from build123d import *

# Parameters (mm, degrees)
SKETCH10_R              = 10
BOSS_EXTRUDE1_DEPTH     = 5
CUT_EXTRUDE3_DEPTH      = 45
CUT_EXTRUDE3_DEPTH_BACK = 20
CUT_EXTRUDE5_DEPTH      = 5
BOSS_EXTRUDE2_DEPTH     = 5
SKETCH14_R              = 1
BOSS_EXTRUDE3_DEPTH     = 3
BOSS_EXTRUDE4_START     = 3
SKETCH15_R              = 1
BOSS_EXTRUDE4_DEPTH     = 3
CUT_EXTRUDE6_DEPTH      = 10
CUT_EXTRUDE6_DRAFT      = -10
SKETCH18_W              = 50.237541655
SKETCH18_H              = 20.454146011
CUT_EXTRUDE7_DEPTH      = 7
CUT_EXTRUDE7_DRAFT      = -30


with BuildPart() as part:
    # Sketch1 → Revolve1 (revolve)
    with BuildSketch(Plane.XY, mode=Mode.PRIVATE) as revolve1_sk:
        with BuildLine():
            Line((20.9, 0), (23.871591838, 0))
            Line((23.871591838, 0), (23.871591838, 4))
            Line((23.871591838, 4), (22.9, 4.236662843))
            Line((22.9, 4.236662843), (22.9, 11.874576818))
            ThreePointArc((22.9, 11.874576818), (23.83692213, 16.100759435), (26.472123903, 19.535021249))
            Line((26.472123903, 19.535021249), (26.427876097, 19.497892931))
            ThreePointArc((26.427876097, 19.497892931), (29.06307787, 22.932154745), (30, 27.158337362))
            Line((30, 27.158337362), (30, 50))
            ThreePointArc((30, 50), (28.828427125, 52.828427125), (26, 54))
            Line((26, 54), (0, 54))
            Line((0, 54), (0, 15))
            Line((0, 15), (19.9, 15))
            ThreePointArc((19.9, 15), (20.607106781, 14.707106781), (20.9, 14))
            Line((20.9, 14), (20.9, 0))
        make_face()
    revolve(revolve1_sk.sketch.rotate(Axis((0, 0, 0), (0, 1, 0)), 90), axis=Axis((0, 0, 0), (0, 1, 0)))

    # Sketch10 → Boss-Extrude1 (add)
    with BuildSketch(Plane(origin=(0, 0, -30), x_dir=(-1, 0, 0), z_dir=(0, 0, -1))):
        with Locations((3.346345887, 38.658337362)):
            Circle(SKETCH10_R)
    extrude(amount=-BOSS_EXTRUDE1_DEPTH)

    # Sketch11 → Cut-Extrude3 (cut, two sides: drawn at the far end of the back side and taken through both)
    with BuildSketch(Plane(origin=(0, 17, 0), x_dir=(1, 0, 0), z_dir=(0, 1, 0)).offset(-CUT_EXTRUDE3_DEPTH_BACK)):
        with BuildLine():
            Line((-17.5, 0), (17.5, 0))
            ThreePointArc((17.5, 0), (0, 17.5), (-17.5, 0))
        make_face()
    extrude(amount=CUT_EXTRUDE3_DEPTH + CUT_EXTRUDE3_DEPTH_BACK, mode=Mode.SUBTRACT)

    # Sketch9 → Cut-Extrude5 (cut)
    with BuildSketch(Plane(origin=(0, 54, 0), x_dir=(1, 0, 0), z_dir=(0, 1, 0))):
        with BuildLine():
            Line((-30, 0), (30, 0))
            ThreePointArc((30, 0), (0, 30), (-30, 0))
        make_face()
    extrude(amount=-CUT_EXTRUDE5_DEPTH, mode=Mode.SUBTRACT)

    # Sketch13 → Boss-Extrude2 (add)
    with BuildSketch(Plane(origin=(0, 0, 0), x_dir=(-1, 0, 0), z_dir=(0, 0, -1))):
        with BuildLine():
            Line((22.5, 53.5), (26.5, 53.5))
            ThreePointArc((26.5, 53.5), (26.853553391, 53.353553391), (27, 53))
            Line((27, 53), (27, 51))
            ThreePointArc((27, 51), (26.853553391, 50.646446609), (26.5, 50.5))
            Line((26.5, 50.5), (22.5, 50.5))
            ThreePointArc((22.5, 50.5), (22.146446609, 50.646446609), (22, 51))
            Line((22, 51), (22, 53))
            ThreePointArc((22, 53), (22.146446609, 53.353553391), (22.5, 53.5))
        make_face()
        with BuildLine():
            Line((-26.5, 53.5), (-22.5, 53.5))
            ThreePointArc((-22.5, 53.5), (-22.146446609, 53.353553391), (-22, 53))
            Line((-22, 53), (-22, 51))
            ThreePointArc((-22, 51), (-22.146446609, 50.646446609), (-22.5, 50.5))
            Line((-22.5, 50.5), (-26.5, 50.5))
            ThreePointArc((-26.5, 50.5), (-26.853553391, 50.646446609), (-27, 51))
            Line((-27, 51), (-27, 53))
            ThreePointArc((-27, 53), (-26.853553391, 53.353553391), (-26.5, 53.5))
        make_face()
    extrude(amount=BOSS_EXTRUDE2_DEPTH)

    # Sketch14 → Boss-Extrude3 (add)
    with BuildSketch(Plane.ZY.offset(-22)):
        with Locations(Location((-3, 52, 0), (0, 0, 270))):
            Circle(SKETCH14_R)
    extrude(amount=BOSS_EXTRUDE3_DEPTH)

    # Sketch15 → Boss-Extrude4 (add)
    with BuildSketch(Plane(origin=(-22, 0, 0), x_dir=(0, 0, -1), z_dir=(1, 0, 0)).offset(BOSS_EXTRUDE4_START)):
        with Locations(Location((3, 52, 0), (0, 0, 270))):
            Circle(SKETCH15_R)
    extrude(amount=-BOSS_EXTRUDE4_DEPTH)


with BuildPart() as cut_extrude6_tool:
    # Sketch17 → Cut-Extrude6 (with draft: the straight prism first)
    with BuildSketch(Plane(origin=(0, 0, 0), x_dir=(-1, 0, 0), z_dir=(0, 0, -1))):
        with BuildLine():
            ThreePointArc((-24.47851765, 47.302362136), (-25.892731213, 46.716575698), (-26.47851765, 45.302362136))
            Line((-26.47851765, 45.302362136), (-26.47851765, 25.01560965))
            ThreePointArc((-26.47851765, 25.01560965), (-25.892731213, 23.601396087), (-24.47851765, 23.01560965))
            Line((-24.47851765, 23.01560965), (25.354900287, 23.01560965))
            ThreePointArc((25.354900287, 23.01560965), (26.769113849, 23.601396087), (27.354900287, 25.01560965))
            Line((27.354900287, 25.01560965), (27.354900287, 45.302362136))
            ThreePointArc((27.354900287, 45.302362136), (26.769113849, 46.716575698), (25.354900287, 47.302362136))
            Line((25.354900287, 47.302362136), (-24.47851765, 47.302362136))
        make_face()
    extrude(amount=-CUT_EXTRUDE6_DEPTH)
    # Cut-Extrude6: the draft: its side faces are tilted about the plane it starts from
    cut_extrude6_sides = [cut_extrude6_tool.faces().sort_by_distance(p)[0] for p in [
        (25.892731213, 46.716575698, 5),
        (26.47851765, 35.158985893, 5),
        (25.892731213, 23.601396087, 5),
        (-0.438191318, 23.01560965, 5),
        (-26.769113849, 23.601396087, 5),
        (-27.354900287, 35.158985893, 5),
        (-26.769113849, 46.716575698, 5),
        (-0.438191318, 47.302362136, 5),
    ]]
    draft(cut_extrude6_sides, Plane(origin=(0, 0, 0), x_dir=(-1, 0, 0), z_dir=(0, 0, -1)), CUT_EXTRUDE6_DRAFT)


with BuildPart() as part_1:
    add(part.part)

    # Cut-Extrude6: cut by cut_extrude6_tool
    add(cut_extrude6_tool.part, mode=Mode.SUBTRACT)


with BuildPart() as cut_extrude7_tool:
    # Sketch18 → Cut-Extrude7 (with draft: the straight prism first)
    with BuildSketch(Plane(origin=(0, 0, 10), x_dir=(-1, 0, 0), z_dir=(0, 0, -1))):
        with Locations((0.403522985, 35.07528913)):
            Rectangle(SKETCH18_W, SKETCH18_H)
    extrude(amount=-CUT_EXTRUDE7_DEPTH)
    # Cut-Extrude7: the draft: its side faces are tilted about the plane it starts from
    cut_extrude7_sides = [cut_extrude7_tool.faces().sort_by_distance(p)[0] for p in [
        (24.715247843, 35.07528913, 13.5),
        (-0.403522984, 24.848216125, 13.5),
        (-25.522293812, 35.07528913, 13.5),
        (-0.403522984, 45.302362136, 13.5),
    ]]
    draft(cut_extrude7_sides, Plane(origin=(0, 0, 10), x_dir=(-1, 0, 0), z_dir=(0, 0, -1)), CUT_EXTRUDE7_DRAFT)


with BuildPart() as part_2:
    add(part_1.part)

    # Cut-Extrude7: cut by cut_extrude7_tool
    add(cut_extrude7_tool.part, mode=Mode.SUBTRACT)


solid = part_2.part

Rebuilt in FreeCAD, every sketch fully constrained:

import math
import FreeCAD as App
import Part
import Sketcher

V = App.Vector
Q = App.Units.Quantity


def faces_at(feature, points):
    """Names of the faces that lie closest to the given points."""
    faces = feature.Shape.Faces
    near = lambda p: min(range(len(faces)), key=lambda i: faces[i].distToShape(Part.Vertex(*p))[0])
    return sorted({f"Face{near(p) + 1}" for p in points})


def add_polygon(sketch, points):
    """Adds a closed chain of lines whose ends are joined by coincident constraints."""
    first, n = sketch.GeometryCount, len(points)
    for a, b in zip(points, points[1:] + points[:1]):
        sketch.addGeometry(Part.LineSegment(App.Vector(*a, 0), App.Vector(*b, 0)), False)
    for i in range(n):
        sketch.addConstraint(Sketcher.Constraint("Coincident", first + i, 2, first + (i + 1) % n, 1))

doc = App.newDocument("Part")
params = doc.addObject("Spreadsheet::Sheet", "Params")
for row, (alias, value) in enumerate([
    ("sketch1_radius", "10 mm"),
    ("sketch1_radius2", "4 mm"),
    ("sketch1_radius3", "1 mm"),
    ("sketch1_width", "26 mm"),
    ("sketch1_height", "4 mm"),
    ("revolution_angle", "360 deg"),
    ("sketch2_diameter", "20 mm"),
    ("pad1_length", "5 mm"),
    ("sketch3_radius", "17.5 mm"),
    ("sketch4_radius", "30 mm"),
    ("pocket2_length", "5 mm"),
    ("sketch5_radius", "0.5 mm"),
    ("sketch5_width", "4 mm"),
    ("sketch5_height", "2 mm"),
    ("pad2_length", "5 mm"),
    ("sketch6_diameter", "2 mm"),
    ("pad3_length", "3 mm"),
    ("sketch7_diameter", "2 mm"),
    ("pad4_length", "3 mm"),
    ("sketch8_radius", "2 mm"),
    ("pad5_length", "10 mm"),
    ("draft_angle", "10 deg"),
    ("pad6_length", "7 mm"),
    ("draft2_angle", "30 deg"),
], start=1):
    params.set(f"A{row}", alias)
    params.set(f"B{row}", "=" + value)
    params.setAlias(f"B{row}", alias)

body = doc.addObject("PartDesign::Body", "Body")

# Sketch on XY plane
sketch1 = body.newObject("Sketcher::SketchObject", "Sketch")
sketch1.AttachmentSupport = (doc.getObject("XY_Plane"), [""])
sketch1.MapMode = "FlatFace"
sketch1.addGeometry(Part.LineSegment(V(20.9, 0, 0), V(23.871592, 0, 0)), False)
sketch1.addGeometry(Part.LineSegment(V(23.871592, 0, 0), V(23.871592, 4, 0)), False)
sketch1.addGeometry(Part.LineSegment(V(23.871592, 4, 0), V(22.9, 4.236663, 0)), False)
sketch1.addGeometry(Part.LineSegment(V(22.9, 4.236663, 0), V(22.9, 11.874577, 0)), False)
sketch1.addGeometry(Part.ArcOfCircle(Part.Circle(V(32.9, 11.874577, 0), V(0, 0, 1), 10), math.radians(130), math.radians(180)), False)
sketch1.addGeometry(Part.LineSegment(V(26.472124, 19.535021, 0), V(26.427876, 19.497893, 0)), False)
sketch1.addGeometry(Part.ArcOfCircle(Part.Circle(V(20, 27.158337, 0), V(0, 0, 1), 10), math.radians(-50), math.radians(0)), False)
sketch1.addGeometry(Part.LineSegment(V(30, 27.158337, 0), V(30, 50, 0)), False)
sketch1.addGeometry(Part.ArcOfCircle(Part.Circle(V(26, 50, 0), V(0, 0, 1), 4), math.radians(0), math.radians(90)), False)
sketch1.addGeometry(Part.LineSegment(V(26, 54, 0), V(0, 54, 0)), False)
sketch1.addGeometry(Part.LineSegment(V(0, 54, 0), V(0, 15, 0)), False)
sketch1.addGeometry(Part.LineSegment(V(0, 15, 0), V(19.9, 15, 0)), False)
sketch1.addGeometry(Part.ArcOfCircle(Part.Circle(V(19.9, 14, 0), V(0, 0, 1), 1), math.radians(0), math.radians(90)), False)
sketch1.addGeometry(Part.LineSegment(V(20.9, 14, 0), V(20.9, 0, 0)), False)
sketch1.addConstraint(Sketcher.Constraint("Coincident", 0, 2, 1, 1))
sketch1.addConstraint(Sketcher.Constraint("Coincident", 1, 2, 2, 1))
sketch1.addConstraint(Sketcher.Constraint("Coincident", 2, 2, 3, 1))
sketch1.addConstraint(Sketcher.Constraint("Tangent", 3, 2, 4, 2))
sketch1.addConstraint(Sketcher.Constraint("Tangent", 4, 1, 5, 1))
sketch1.addConstraint(Sketcher.Constraint("Tangent", 5, 2, 6, 1))
sketch1.addConstraint(Sketcher.Constraint("Tangent", 6, 2, 7, 1))
sketch1.addConstraint(Sketcher.Constraint("Tangent", 7, 2, 8, 1))
sketch1.addConstraint(Sketcher.Constraint("Tangent", 8, 2, 9, 1))
sketch1.addConstraint(Sketcher.Constraint("Coincident", 9, 2, 10, 1))
sketch1.addConstraint(Sketcher.Constraint("Coincident", 10, 2, 11, 1))
sketch1.addConstraint(Sketcher.Constraint("Tangent", 11, 2, 12, 2))
sketch1.addConstraint(Sketcher.Constraint("Tangent", 12, 1, 13, 1))
sketch1.addConstraint(Sketcher.Constraint("Coincident", 13, 2, 0, 1))
sketch1.addConstraint(Sketcher.Constraint("Horizontal", 0))
sketch1.addConstraint(Sketcher.Constraint("Vertical", 1))
sketch1.addConstraint(Sketcher.Constraint("Vertical", 3))
sketch1.addConstraint(Sketcher.Constraint("Vertical", 7))
sketch1.addConstraint(Sketcher.Constraint("Horizontal", 9))
sketch1.addConstraint(Sketcher.Constraint("Vertical", 10))
sketch1.addConstraint(Sketcher.Constraint("Horizontal", 11))
sketch1.addConstraint(Sketcher.Constraint("Vertical", 13))
sketch1.addConstraint(Sketcher.Constraint("Equal", 4, 6))
sketch1.addConstraint(Sketcher.Constraint("PointOnObject", 0, 2, -1))
sketch1.addConstraint(Sketcher.Constraint("PointOnObject", 9, 2, -2))
sketch1.addConstraint(Sketcher.Constraint("Radius", 4, 10.0))
sketch1.addConstraint(Sketcher.Constraint("Radius", 8, 4.0))
sketch1.addConstraint(Sketcher.Constraint("Radius", 12, 1.0))
sketch1.addConstraint(Sketcher.Constraint("DistanceX", 9, 2, 9, 1, 26.0))
sketch1.addConstraint(Sketcher.Constraint("DistanceY", 1, 1, 1, 2, 4.0))
sketch1.addConstraint(Sketcher.Constraint("DistanceY", 10, 2, 10, 1, 39.0))
sketch1.addConstraint(Sketcher.Constraint("DistanceY", 13, 2, 13, 1, 14.0))
sketch1.addConstraint(Sketcher.Constraint("Angle", 5, Q("-140 deg")))
sketch1.addConstraint(Sketcher.Constraint("Distance", 2, 1.0))
sketch1.addConstraint(Sketcher.Constraint("DistanceX", 11, 1, 11, 2, 19.9))
sketch1.addConstraint(Sketcher.Constraint("DistanceX", 12, 3, 4, 3, 13.0))
sketch1.addConstraint(Sketcher.Constraint("DistanceX", 0, 1, 0, 2, 2.971592))
sketch1.addConstraint(Sketcher.Constraint("DistanceY", 3, 1, 3, 2, 7.637914))
sketch1.setExpression("Constraints[25]", "Params.sketch1_radius")
sketch1.setExpression("Constraints[26]", "Params.sketch1_radius2")
sketch1.setExpression("Constraints[27]", "Params.sketch1_radius3")
sketch1.setExpression("Constraints[28]", "Params.sketch1_width")
sketch1.setExpression("Constraints[29]", "Params.sketch1_height")
revolution = body.newObject("PartDesign::Revolution", "Revolution")
revolution.Profile = sketch1
revolution.ReferenceAxis = (sketch1, ["V_Axis"])
revolution.setExpression("Angle", "Params.revolution_angle")

# Sketch on XY plane
sketch2 = body.newObject("Sketcher::SketchObject", "Sketch001")
sketch2.AttachmentSupport = (doc.getObject("XY_Plane"), [""])
sketch2.MapMode = "FlatFace"
sketch2.AttachmentOffset = App.Placement(V(0, 0, -30), App.Rotation())
sketch2.addGeometry(Part.Circle(V(-3.346346, 38.658337, 0), V(0, 0, 1), 10), False)
sketch2.addConstraint(Sketcher.Constraint("Diameter", 0, 20.0))
sketch2.addConstraint(Sketcher.Constraint("DistanceX", 0, 3, -1, 1, 3.346346))
sketch2.addConstraint(Sketcher.Constraint("DistanceY", -1, 1, 0, 3, 38.658337))
sketch2.setExpression("Constraints[0]", "Params.sketch2_diameter")
pad1 = body.newObject("PartDesign::Pad", "Pad")
pad1.Profile = sketch2
pad1.setExpression("Length", "Params.pad1_length")

# Sketch on XZ plane
sketch3 = body.newObject("Sketcher::SketchObject", "Sketch002")
sketch3.AttachmentSupport = (doc.getObject("XZ_Plane"), [""])
sketch3.MapMode = "FlatFace"
sketch3.AttachmentOffset = App.Placement(V(0, 0, -17), App.Rotation())
sketch3.addGeometry(Part.LineSegment(V(-17.5, 0, 0), V(17.5, 0, 0)), False)
sketch3.addGeometry(Part.ArcOfCircle(Part.Circle(V(0, 0, 0), V(0, 0, 1), 17.5), math.radians(180), math.radians(360)), False)
sketch3.addConstraint(Sketcher.Constraint("Coincident", 0, 1, 1, 1))
sketch3.addConstraint(Sketcher.Constraint("Coincident", 1, 2, 0, 2))
sketch3.addConstraint(Sketcher.Constraint("Horizontal", 0))
sketch3.addConstraint(Sketcher.Constraint("Coincident", 1, 3, -1, 1))
sketch3.addConstraint(Sketcher.Constraint("PointOnObject", 0, 1, -1))
sketch3.addConstraint(Sketcher.Constraint("Radius", 1, 17.5))
sketch3.setExpression("Constraints[5]", "Params.sketch3_radius")
pocket1 = body.newObject("PartDesign::Pocket", "Pocket")
pocket1.Profile = sketch3
pocket1.Type = "ThroughAll"
pocket1.Midplane = True

# Sketch on XZ plane
sketch4 = body.newObject("Sketcher::SketchObject", "Sketch003")
sketch4.AttachmentSupport = (doc.getObject("XZ_Plane"), [""])
sketch4.MapMode = "FlatFace"
sketch4.AttachmentOffset = App.Placement(V(0, 0, -54), App.Rotation())
sketch4.addGeometry(Part.LineSegment(V(-30, 0, 0), V(30, 0, 0)), False)
sketch4.addGeometry(Part.ArcOfCircle(Part.Circle(V(0, 0, 0), V(0, 0, 1), 30), math.radians(180), math.radians(360)), False)
sketch4.addConstraint(Sketcher.Constraint("Coincident", 0, 1, 1, 1))
sketch4.addConstraint(Sketcher.Constraint("Coincident", 1, 2, 0, 2))
sketch4.addConstraint(Sketcher.Constraint("Horizontal", 0))
sketch4.addConstraint(Sketcher.Constraint("Coincident", 1, 3, -1, 1))
sketch4.addConstraint(Sketcher.Constraint("PointOnObject", 0, 1, -1))
sketch4.addConstraint(Sketcher.Constraint("Radius", 1, 30.0))
sketch4.setExpression("Constraints[5]", "Params.sketch4_radius")
pocket2 = body.newObject("PartDesign::Pocket", "Pocket001")
pocket2.Profile = sketch4
pocket2.setExpression("Length", "Params.pocket2_length")
pocket2.Reversed = True

# Sketch on XY plane
sketch5 = body.newObject("Sketcher::SketchObject", "Sketch004")
sketch5.AttachmentSupport = (doc.getObject("XY_Plane"), [""])
sketch5.MapMode = "FlatFace"
sketch5.addGeometry(Part.LineSegment(V(-26.5, 53.5, 0), V(-22.5, 53.5, 0)), False)
sketch5.addGeometry(Part.ArcOfCircle(Part.Circle(V(-22.5, 53, 0), V(0, 0, 1), 0.5), math.radians(0), math.radians(90)), False)
sketch5.addGeometry(Part.LineSegment(V(-22, 53, 0), V(-22, 51, 0)), False)
sketch5.addGeometry(Part.ArcOfCircle(Part.Circle(V(-22.5, 51, 0), V(0, 0, 1), 0.5), math.radians(-90), math.radians(0)), False)
sketch5.addGeometry(Part.LineSegment(V(-22.5, 50.5, 0), V(-26.5, 50.5, 0)), False)
sketch5.addGeometry(Part.ArcOfCircle(Part.Circle(V(-26.5, 51, 0), V(0, 0, 1), 0.5), math.radians(180), math.radians(270)), False)
sketch5.addGeometry(Part.LineSegment(V(-27, 51, 0), V(-27, 53, 0)), False)
sketch5.addGeometry(Part.ArcOfCircle(Part.Circle(V(-26.5, 53, 0), V(0, 0, 1), 0.5), math.radians(90), math.radians(180)), False)
sketch5.addGeometry(Part.LineSegment(V(22.5, 53.5, 0), V(26.5, 53.5, 0)), False)
sketch5.addGeometry(Part.ArcOfCircle(Part.Circle(V(26.5, 53, 0), V(0, 0, 1), 0.5), math.radians(0), math.radians(90)), False)
sketch5.addGeometry(Part.LineSegment(V(27, 53, 0), V(27, 51, 0)), False)
sketch5.addGeometry(Part.ArcOfCircle(Part.Circle(V(26.5, 51, 0), V(0, 0, 1), 0.5), math.radians(-90), math.radians(0)), False)
sketch5.addGeometry(Part.LineSegment(V(26.5, 50.5, 0), V(22.5, 50.5, 0)), False)
sketch5.addGeometry(Part.ArcOfCircle(Part.Circle(V(22.5, 51, 0), V(0, 0, 1), 0.5), math.radians(180), math.radians(270)), False)
sketch5.addGeometry(Part.LineSegment(V(22, 51, 0), V(22, 53, 0)), False)
sketch5.addGeometry(Part.ArcOfCircle(Part.Circle(V(22.5, 53, 0), V(0, 0, 1), 0.5), math.radians(90), math.radians(180)), False)
sketch5.addConstraint(Sketcher.Constraint("Tangent", 0, 2, 1, 2))
sketch5.addConstraint(Sketcher.Constraint("Tangent", 1, 1, 2, 1))
sketch5.addConstraint(Sketcher.Constraint("Tangent", 2, 2, 3, 2))
sketch5.addConstraint(Sketcher.Constraint("Tangent", 3, 1, 4, 1))
sketch5.addConstraint(Sketcher.Constraint("Tangent", 4, 2, 5, 2))
sketch5.addConstraint(Sketcher.Constraint("Tangent", 5, 1, 6, 1))
sketch5.addConstraint(Sketcher.Constraint("Tangent", 6, 2, 7, 2))
sketch5.addConstraint(Sketcher.Constraint("Tangent", 7, 1, 0, 1))
sketch5.addConstraint(Sketcher.Constraint("Tangent", 8, 2, 9, 2))
sketch5.addConstraint(Sketcher.Constraint("Tangent", 9, 1, 10, 1))
sketch5.addConstraint(Sketcher.Constraint("Tangent", 10, 2, 11, 2))
sketch5.addConstraint(Sketcher.Constraint("Tangent", 11, 1, 12, 1))
sketch5.addConstraint(Sketcher.Constraint("Tangent", 12, 2, 13, 2))
sketch5.addConstraint(Sketcher.Constraint("Tangent", 13, 1, 14, 1))
sketch5.addConstraint(Sketcher.Constraint("Tangent", 14, 2, 15, 2))
sketch5.addConstraint(Sketcher.Constraint("Tangent", 15, 1, 8, 1))
sketch5.addConstraint(Sketcher.Constraint("Horizontal", 0))
sketch5.addConstraint(Sketcher.Constraint("Vertical", 2))
sketch5.addConstraint(Sketcher.Constraint("Horizontal", 4))
sketch5.addConstraint(Sketcher.Constraint("Vertical", 6))
sketch5.addConstraint(Sketcher.Constraint("Horizontal", 8))
sketch5.addConstraint(Sketcher.Constraint("Vertical", 10))
sketch5.addConstraint(Sketcher.Constraint("Horizontal", 12))
sketch5.addConstraint(Sketcher.Constraint("Vertical", 14))
sketch5.addConstraint(Sketcher.Constraint("Equal", 1, 3))
sketch5.addConstraint(Sketcher.Constraint("Equal", 3, 5))
sketch5.addConstraint(Sketcher.Constraint("Equal", 5, 7))
sketch5.addConstraint(Sketcher.Constraint("Equal", 7, 9))
sketch5.addConstraint(Sketcher.Constraint("Equal", 9, 11))
sketch5.addConstraint(Sketcher.Constraint("Equal", 11, 13))
sketch5.addConstraint(Sketcher.Constraint("Equal", 13, 15))
sketch5.addConstraint(Sketcher.Constraint("Symmetric", 7, 3, 9, 3, -2))
sketch5.addConstraint(Sketcher.Constraint("Symmetric", 3, 3, 13, 3, -2))
sketch5.addConstraint(Sketcher.Constraint("Radius", 1, 0.5))
sketch5.addConstraint(Sketcher.Constraint("DistanceX", 0, 1, 0, 2, 4.0))
sketch5.addConstraint(Sketcher.Constraint("DistanceY", 2, 2, 2, 1, 2.0))
sketch5.addConstraint(Sketcher.Constraint("DistanceY", -1, 1, 1, 3, 53.0))
sketch5.addConstraint(Sketcher.Constraint("DistanceX", 1, 1, -1, 1, 22.0))
sketch5.setExpression("Constraints[33]", "Params.sketch5_radius")
sketch5.setExpression("Constraints[34]", "Params.sketch5_width")
sketch5.setExpression("Constraints[35]", "Params.sketch5_height")
pad2 = body.newObject("PartDesign::Pad", "Pad001")
pad2.Profile = sketch5
pad2.setExpression("Length", "Params.pad2_length")
pad2.Reversed = True

# Sketch on YZ plane
sketch6 = body.newObject("Sketcher::SketchObject", "Sketch005")
sketch6.AttachmentSupport = (doc.getObject("YZ_Plane"), [""])
sketch6.MapMode = "FlatFace"
sketch6.AttachmentOffset = App.Placement(V(0, 0, 22), App.Rotation())
sketch6.addGeometry(Part.Circle(V(52, -3, 0), V(0, 0, 1), 1), False)
sketch6.addConstraint(Sketcher.Constraint("Diameter", 0, 2.0))
sketch6.addConstraint(Sketcher.Constraint("DistanceX", -1, 1, 0, 3, 52.0))
sketch6.addConstraint(Sketcher.Constraint("DistanceY", 0, 3, -1, 1, 3.0))
sketch6.setExpression("Constraints[0]", "Params.sketch6_diameter")
pad3 = body.newObject("PartDesign::Pad", "Pad002")
pad3.Profile = sketch6
pad3.setExpression("Length", "Params.pad3_length")
pad3.Reversed = True

# Sketch on YZ plane
sketch7 = body.newObject("Sketcher::SketchObject", "Sketch006")
sketch7.AttachmentSupport = (doc.getObject("YZ_Plane"), [""])
sketch7.MapMode = "FlatFace"
sketch7.AttachmentOffset = App.Placement(V(0, 0, -19), App.Rotation())
sketch7.addGeometry(Part.Circle(V(52, -3, 0), V(0, 0, 1), 1), False)
sketch7.addConstraint(Sketcher.Constraint("Diameter", 0, 2.0))
sketch7.addConstraint(Sketcher.Constraint("DistanceX", -1, 1, 0, 3, 52.0))
sketch7.addConstraint(Sketcher.Constraint("DistanceY", 0, 3, -1, 1, 3.0))
sketch7.setExpression("Constraints[0]", "Params.sketch7_diameter")
pad4 = body.newObject("PartDesign::Pad", "Pad003")
pad4.Profile = sketch7
pad4.setExpression("Length", "Params.pad4_length")
pad4.Reversed = True
body2 = doc.addObject("PartDesign::Body", "Body001")

# Sketch on XY plane
sketch8 = body2.newObject("Sketcher::SketchObject", "Sketch007")
sketch8.AttachmentSupport = (doc.getObject("XY_Plane001"), [""])
sketch8.MapMode = "FlatFace"
sketch8.addGeometry(Part.ArcOfCircle(Part.Circle(V(24.478518, 45.302362, 0), V(0, 0, 1), 2), math.radians(0), math.radians(90)), False)
sketch8.addGeometry(Part.LineSegment(V(26.478518, 45.302362, 0), V(26.478518, 25.01561, 0)), False)
sketch8.addGeometry(Part.ArcOfCircle(Part.Circle(V(24.478518, 25.01561, 0), V(0, 0, 1), 2), math.radians(-90), math.radians(0)), False)
sketch8.addGeometry(Part.LineSegment(V(24.478518, 23.01561, 0), V(-25.3549, 23.01561, 0)), False)
sketch8.addGeometry(Part.ArcOfCircle(Part.Circle(V(-25.3549, 25.01561, 0), V(0, 0, 1), 2), math.radians(180), math.radians(270)), False)
sketch8.addGeometry(Part.LineSegment(V(-27.3549, 25.01561, 0), V(-27.3549, 45.302362, 0)), False)
sketch8.addGeometry(Part.ArcOfCircle(Part.Circle(V(-25.3549, 45.302362, 0), V(0, 0, 1), 2), math.radians(90), math.radians(180)), False)
sketch8.addGeometry(Part.LineSegment(V(-25.3549, 47.302362, 0), V(24.478518, 47.302362, 0)), False)
sketch8.addConstraint(Sketcher.Constraint("Tangent", 0, 1, 1, 1))
sketch8.addConstraint(Sketcher.Constraint("Tangent", 1, 2, 2, 2))
sketch8.addConstraint(Sketcher.Constraint("Tangent", 2, 1, 3, 1))
sketch8.addConstraint(Sketcher.Constraint("Tangent", 3, 2, 4, 2))
sketch8.addConstraint(Sketcher.Constraint("Tangent", 4, 1, 5, 1))
sketch8.addConstraint(Sketcher.Constraint("Tangent", 5, 2, 6, 2))
sketch8.addConstraint(Sketcher.Constraint("Tangent", 6, 1, 7, 1))
sketch8.addConstraint(Sketcher.Constraint("Tangent", 7, 2, 0, 2))
sketch8.addConstraint(Sketcher.Constraint("Vertical", 1))
sketch8.addConstraint(Sketcher.Constraint("Horizontal", 3))
sketch8.addConstraint(Sketcher.Constraint("Vertical", 5))
sketch8.addConstraint(Sketcher.Constraint("Horizontal", 7))
sketch8.addConstraint(Sketcher.Constraint("Equal", 0, 2))
sketch8.addConstraint(Sketcher.Constraint("Equal", 2, 4))
sketch8.addConstraint(Sketcher.Constraint("Equal", 4, 6))
sketch8.addConstraint(Sketcher.Constraint("Radius", 0, 2.0))
sketch8.addConstraint(Sketcher.Constraint("DistanceX", 4, 3, -1, 1, 25.3549))
sketch8.addConstraint(Sketcher.Constraint("DistanceX", 3, 2, 3, 1, 49.833418))
sketch8.addConstraint(Sketcher.Constraint("DistanceY", 1, 2, 1, 1, 20.286752))
sketch8.addConstraint(Sketcher.Constraint("DistanceY", -1, 1, 2, 3, 25.01561))
sketch8.setExpression("Constraints[15]", "Params.sketch8_radius")
pad5 = body2.newObject("PartDesign::Pad", "Pad004")
pad5.Profile = sketch8
pad5.setExpression("Length", "Params.pad5_length")
doc.recompute()

draft = body2.newObject("PartDesign::Draft", "Draft")
draft.Base = (pad5, faces_at(pad5, [
    (25.893, 46.717, 5),
    (26.479, 35.159, 5),
    (25.893, 23.601, 5),
    (-0.438, 23.016, 5),
    (-26.769, 23.601, 5),
    (-27.355, 35.159, 5),
    (-26.769, 46.717, 5),
    (-0.438, 47.302, 5),
]))
draft.NeutralPlane = (doc.getObject("XY_Plane001"), [""])
draft.setExpression("Angle", "Params.draft_angle")
draft.Reversed = False
doc.recompute()

boolean = body.newObject("PartDesign::Boolean", "Boolean")
boolean.Type = "Cut"
boolean.addObjects([body2])
body3 = doc.addObject("PartDesign::Body", "Body002")

# Sketch on XY plane
sketch9 = body3.newObject("Sketcher::SketchObject", "Sketch008")
sketch9.AttachmentSupport = (doc.getObject("XY_Plane002"), [""])
sketch9.MapMode = "FlatFace"
sketch9.AttachmentOffset = App.Placement(V(0, 0, 10), App.Rotation())
add_polygon(sketch9, [(24.715248, 45.302362), (24.715248, 24.848216), (-25.522294, 24.848216), (-25.522294, 45.302362)])  # lines 0-3
sketch9.addConstraint(Sketcher.Constraint("Vertical", 0))
sketch9.addConstraint(Sketcher.Constraint("Horizontal", 1))
sketch9.addConstraint(Sketcher.Constraint("Vertical", 2))
sketch9.addConstraint(Sketcher.Constraint("Horizontal", 3))
sketch9.addConstraint(Sketcher.Constraint("DistanceX", 1, 2, 1, 1, 50.237542))
sketch9.addConstraint(Sketcher.Constraint("DistanceY", 0, 2, 0, 1, 20.454146))
sketch9.addConstraint(Sketcher.Constraint("DistanceX", -1, 1, 0, 2, 24.715248))
sketch9.addConstraint(Sketcher.Constraint("DistanceY", -1, 1, 0, 2, 24.848216))
pad6 = body3.newObject("PartDesign::Pad", "Pad005")
pad6.Profile = sketch9
pad6.setExpression("Length", "Params.pad6_length")
doc.recompute()

datumplane = body3.newObject("PartDesign::Plane", "DatumPlane")
datumplane.AttachmentSupport = (doc.getObject("XY_Plane002"), [""])
datumplane.MapMode = "FlatFace"
datumplane.AttachmentOffset = App.Placement(V(0, 0, 10), App.Rotation())
draft2 = body3.newObject("PartDesign::Draft", "Draft001")
draft2.Base = (pad6, faces_at(pad6, [
    (24.715, 35.075, 13.5),
    (-0.404, 24.848, 13.5),
    (-25.522, 35.075, 13.5),
    (-0.404, 45.302, 13.5),
]))
draft2.NeutralPlane = (datumplane, [""])
draft2.setExpression("Angle", "Params.draft2_angle")
draft2.Reversed = False
doc.recompute()

boolean2 = body.newObject("PartDesign::Boolean", "Boolean001")
boolean2.Type = "Cut"
boolean2.addObjects([body3])

doc.recompute()
